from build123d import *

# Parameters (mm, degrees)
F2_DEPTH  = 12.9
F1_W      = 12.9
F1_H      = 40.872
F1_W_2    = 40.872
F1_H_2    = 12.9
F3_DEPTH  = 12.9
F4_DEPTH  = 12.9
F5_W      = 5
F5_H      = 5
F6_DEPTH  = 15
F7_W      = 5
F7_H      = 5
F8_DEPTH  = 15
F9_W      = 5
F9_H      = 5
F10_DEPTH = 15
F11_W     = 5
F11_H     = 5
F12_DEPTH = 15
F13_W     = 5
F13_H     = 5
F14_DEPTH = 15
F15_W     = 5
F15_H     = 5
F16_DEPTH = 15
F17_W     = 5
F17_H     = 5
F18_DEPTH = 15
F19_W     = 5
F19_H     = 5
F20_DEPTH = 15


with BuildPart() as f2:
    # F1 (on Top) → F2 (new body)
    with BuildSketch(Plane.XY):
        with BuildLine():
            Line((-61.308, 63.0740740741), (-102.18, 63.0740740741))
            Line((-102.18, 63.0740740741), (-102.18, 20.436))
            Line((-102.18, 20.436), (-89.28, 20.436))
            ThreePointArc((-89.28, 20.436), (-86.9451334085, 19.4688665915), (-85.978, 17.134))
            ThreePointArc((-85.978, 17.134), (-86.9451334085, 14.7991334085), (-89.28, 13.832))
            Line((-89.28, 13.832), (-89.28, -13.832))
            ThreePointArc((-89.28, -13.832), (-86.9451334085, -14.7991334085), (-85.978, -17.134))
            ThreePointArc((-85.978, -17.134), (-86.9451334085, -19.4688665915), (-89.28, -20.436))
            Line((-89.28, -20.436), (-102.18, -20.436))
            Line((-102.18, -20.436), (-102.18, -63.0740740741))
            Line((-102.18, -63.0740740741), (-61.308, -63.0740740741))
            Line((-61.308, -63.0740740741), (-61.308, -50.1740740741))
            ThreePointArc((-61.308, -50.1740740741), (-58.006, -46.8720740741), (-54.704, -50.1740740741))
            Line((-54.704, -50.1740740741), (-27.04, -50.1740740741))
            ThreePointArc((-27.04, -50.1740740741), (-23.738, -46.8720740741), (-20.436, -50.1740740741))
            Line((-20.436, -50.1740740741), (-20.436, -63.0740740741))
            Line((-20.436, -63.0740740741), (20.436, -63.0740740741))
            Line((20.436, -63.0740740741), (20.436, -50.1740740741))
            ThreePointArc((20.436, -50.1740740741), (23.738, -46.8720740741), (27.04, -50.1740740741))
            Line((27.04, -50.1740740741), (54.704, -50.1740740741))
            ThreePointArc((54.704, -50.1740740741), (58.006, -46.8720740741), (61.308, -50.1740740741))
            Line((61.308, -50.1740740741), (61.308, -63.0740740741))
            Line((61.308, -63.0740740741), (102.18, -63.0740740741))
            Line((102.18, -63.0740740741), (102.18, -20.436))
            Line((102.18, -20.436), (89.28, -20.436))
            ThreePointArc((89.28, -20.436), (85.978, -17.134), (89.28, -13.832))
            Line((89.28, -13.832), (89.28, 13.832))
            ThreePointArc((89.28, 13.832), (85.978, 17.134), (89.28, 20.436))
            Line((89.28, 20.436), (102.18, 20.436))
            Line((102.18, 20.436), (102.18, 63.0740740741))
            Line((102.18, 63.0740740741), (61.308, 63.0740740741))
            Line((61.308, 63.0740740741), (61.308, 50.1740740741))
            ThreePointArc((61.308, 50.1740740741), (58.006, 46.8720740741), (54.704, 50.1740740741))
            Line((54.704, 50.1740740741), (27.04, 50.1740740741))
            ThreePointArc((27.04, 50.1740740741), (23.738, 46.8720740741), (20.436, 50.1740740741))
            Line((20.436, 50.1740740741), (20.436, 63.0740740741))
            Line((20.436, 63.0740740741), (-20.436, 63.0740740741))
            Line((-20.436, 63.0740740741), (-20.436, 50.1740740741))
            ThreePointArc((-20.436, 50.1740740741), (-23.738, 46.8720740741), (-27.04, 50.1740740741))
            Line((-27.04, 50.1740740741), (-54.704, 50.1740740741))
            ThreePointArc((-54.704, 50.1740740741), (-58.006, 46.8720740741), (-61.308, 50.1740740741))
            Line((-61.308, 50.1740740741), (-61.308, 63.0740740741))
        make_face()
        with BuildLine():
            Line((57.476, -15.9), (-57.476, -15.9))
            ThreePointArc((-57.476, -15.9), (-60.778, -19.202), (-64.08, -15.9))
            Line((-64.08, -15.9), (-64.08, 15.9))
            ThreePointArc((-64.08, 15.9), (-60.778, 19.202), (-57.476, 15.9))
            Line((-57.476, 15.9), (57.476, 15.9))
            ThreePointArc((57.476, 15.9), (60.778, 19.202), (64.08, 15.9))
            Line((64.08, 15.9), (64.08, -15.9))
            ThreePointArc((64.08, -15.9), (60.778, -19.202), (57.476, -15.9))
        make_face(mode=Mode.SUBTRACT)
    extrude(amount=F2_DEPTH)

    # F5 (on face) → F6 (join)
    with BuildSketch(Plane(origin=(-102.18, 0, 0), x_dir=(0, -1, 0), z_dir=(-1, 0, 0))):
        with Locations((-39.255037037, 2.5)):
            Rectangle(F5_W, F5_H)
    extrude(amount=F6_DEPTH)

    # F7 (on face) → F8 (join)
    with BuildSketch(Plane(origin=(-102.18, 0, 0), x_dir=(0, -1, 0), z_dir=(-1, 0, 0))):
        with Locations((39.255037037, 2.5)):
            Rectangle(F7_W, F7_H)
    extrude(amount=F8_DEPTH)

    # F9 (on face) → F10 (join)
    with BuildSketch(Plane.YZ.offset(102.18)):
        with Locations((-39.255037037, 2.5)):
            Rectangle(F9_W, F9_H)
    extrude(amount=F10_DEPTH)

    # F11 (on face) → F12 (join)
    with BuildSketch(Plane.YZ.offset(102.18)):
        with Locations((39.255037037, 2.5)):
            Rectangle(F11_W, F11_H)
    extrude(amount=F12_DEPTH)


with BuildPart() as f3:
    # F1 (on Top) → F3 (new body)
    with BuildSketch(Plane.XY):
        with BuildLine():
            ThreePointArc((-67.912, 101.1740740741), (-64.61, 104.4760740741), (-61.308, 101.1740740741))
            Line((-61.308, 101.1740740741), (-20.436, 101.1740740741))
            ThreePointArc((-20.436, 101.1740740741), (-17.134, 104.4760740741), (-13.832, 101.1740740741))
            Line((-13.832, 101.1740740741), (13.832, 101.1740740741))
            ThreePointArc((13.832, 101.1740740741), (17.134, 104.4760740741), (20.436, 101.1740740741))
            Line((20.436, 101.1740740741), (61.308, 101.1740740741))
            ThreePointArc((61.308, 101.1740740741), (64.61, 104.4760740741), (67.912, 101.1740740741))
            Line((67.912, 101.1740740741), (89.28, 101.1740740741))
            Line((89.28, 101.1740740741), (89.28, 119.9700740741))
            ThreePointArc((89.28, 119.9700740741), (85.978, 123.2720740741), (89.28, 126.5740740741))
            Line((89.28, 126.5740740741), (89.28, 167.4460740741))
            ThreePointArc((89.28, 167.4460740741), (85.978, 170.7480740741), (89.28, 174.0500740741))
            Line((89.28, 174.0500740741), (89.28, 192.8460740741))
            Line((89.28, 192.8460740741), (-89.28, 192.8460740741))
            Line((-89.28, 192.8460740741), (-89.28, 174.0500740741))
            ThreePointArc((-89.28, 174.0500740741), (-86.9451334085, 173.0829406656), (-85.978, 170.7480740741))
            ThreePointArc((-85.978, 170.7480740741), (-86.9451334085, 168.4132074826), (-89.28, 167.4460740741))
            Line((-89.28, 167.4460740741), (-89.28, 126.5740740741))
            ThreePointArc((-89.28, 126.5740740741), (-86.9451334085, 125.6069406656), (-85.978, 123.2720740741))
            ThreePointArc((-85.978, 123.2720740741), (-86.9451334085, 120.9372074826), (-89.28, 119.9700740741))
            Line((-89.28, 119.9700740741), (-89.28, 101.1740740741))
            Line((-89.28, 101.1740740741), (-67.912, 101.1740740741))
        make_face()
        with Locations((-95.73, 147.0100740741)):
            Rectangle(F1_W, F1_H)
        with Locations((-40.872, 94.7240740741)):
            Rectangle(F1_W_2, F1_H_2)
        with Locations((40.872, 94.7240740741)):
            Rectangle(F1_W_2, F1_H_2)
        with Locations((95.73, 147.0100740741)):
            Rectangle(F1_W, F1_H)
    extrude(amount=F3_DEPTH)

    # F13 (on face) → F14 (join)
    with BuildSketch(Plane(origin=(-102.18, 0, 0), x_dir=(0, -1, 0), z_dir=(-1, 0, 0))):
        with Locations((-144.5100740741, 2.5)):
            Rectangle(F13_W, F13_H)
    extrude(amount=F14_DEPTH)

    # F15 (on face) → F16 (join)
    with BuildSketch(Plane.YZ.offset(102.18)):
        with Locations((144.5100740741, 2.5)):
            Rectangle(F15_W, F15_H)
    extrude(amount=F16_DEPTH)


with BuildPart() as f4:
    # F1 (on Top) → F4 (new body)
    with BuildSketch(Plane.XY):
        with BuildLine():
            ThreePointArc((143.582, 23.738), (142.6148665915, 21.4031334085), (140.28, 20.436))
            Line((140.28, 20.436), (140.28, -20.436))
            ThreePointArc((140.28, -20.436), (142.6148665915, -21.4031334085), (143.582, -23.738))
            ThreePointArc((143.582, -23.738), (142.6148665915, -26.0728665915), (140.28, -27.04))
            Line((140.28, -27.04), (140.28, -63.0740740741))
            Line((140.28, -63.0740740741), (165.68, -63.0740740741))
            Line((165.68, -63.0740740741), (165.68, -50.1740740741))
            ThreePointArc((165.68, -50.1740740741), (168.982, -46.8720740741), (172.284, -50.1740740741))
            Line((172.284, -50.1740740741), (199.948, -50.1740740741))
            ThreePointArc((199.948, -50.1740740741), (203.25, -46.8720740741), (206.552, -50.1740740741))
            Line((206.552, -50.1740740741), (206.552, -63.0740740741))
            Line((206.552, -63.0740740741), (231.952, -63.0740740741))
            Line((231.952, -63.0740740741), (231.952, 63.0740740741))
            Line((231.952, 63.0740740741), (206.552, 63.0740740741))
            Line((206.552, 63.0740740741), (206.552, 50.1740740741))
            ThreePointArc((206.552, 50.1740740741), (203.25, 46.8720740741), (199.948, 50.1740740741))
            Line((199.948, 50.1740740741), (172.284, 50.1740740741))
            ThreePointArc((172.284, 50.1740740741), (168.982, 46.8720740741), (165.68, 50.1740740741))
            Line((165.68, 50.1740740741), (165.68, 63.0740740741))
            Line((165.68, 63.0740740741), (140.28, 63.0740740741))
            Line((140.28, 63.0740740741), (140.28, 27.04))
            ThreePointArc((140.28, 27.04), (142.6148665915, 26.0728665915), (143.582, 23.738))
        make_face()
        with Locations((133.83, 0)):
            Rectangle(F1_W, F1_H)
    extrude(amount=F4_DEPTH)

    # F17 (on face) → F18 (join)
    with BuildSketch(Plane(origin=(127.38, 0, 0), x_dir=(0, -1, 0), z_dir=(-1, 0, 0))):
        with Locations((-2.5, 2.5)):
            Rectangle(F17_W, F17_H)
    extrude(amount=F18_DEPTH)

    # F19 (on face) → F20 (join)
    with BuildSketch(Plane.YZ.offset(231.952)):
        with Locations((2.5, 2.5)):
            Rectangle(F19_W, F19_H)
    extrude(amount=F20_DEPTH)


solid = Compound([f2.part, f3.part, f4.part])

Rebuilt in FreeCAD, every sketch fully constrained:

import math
import FreeCAD as App
import Part
import Sketcher
from FreeCAD import Vector
Q = App.Units.Quantity


def add_polygon(sketch, points):
    """Adds a closed chain of lines whose ends are joined by coincident constraints."""
    first, n = sketch.GeometryCount, len(points)
    for a, b in zip(points, points[1:] + points[:1]):
        sketch.addGeometry(Part.LineSegment(App.Vector(*a, 0), App.Vector(*b, 0)), False)
    for i in range(n):
        sketch.addConstraint(Sketcher.Constraint("Coincident", first + i, 2, first + (i + 1) % n, 1))

doc = App.newDocument("Part")
body = doc.addObject("PartDesign::Body", "Body")

sketch1 = doc.addObject("Sketcher::SketchObject", "Sketch")
body.addObject(sketch1)
sketch1.AttachmentSupport = (doc.XY_Plane, [""])
sketch1.MapMode = "FlatFace"
sketch1.addGeometry(Part.LineSegment(Vector(-61.3, 63.1, 0), Vector(-102.2, 63.1, 0)), False)
sketch1.addGeometry(Part.LineSegment(Vector(-102.2, 63.1, 0), Vector(-102.2, 20.4, 0)), False)
sketch1.addGeometry(Part.LineSegment(Vector(-102.2, 20.4, 0), Vector(-89.3, 20.4, 0)), False)
sketch1.addGeometry(Part.ArcOfCircle(Part.Circle(Vector(-89.3, 17.1, 0), Vector(0, 0, 1), 3.3), math.radians(0), math.radians(90)), False)
sketch1.addGeometry(Part.ArcOfCircle(Part.Circle(Vector(-89.3, 17.1, 0), Vector(0, 0, 1), 3.3), math.radians(-90), math.radians(0)), False)
sketch1.addGeometry(Part.LineSegment(Vector(-89.3, 13.8, 0), Vector(-89.3, -13.8, 0)), False)
sketch1.addGeometry(Part.ArcOfCircle(Part.Circle(Vector(-89.3, -17.1, 0), Vector(0, 0, 1), 3.3), math.radians(0), math.radians(90)), False)
sketch1.addGeometry(Part.ArcOfCircle(Part.Circle(Vector(-89.3, -17.1, 0), Vector(0, 0, 1), 3.3), math.radians(-90), math.radians(0)), False)
sketch1.addGeometry(Part.LineSegment(Vector(-89.3, -20.4, 0), Vector(-102.2, -20.4, 0)), False)
sketch1.addGeometry(Part.LineSegment(Vector(-102.2, -20.4, 0), Vector(-102.2, -63.1, 0)), False)
sketch1.addGeometry(Part.LineSegment(Vector(-102.2, -63.1, 0), Vector(-61.3, -63.1, 0)), False)
sketch1.addGeometry(Part.LineSegment(Vector(-61.3, -63.1, 0), Vector(-61.3, -50.2, 0)), False)
sketch1.addGeometry(Part.ArcOfCircle(Part.Circle(Vector(-58, -50.2, 0), Vector(0, 0, 1), 3.3), math.radians(0), math.radians(180)), False)
sketch1.addGeometry(Part.LineSegment(Vector(-54.7, -50.2, 0), Vector(-27, -50.2, 0)), False)
sketch1.addGeometry(Part.ArcOfCircle(Part.Circle(Vector(-23.7, -50.2, 0), Vector(0, 0, 1), 3.3), math.radians(0), math.radians(180)), False)
sketch1.addGeometry(Part.LineSegment(Vector(-20.4, -50.2, 0), Vector(-20.4, -63.1, 0)), False)
sketch1.addGeometry(Part.LineSegment(Vector(-20.4, -63.1, 0), Vector(20.4, -63.1, 0)), False)
sketch1.addGeometry(Part.LineSegment(Vector(20.4, -63.1, 0), Vector(20.4, -50.2, 0)), False)
sketch1.addGeometry(Part.ArcOfCircle(Part.Circle(Vector(23.7, -50.2, 0), Vector(0, 0, 1), 3.3), math.radians(0), math.radians(180)), False)
sketch1.addGeometry(Part.LineSegment(Vector(27, -50.2, 0), Vector(54.7, -50.2, 0)), False)
sketch1.addGeometry(Part.ArcOfCircle(Part.Circle(Vector(58, -50.2, 0), Vector(0, 0, 1), 3.3), math.radians(0), math.radians(180)), False)
sketch1.addGeometry(Part.LineSegment(Vector(61.3, -50.2, 0), Vector(61.3, -63.1, 0)), False)
sketch1.addGeometry(Part.LineSegment(Vector(61.3, -63.1, 0), Vector(102.2, -63.1, 0)), False)
sketch1.addGeometry(Part.LineSegment(Vector(102.2, -63.1, 0), Vector(102.2, -20.4, 0)), False)
sketch1.addGeometry(Part.LineSegment(Vector(102.2, -20.4, 0), Vector(89.3, -20.4, 0)), False)
sketch1.addGeometry(Part.ArcOfCircle(Part.Circle(Vector(89.3, -17.1, 0), Vector(0, 0, 1), 3.3), math.radians(90), math.radians(270)), False)
sketch1.addGeometry(Part.LineSegment(Vector(89.3, -13.8, 0), Vector(89.3, 13.8, 0)), False)
sketch1.addGeometry(Part.ArcOfCircle(Part.Circle(Vector(89.3, 17.1, 0), Vector(0, 0, 1), 3.3), math.radians(90), math.radians(270)), False)
sketch1.addGeometry(Part.LineSegment(Vector(89.3, 20.4, 0), Vector(102.2, 20.4, 0)), False)
sketch1.addGeometry(Part.LineSegment(Vector(102.2, 20.4, 0), Vector(102.2, 63.1, 0)), False)
sketch1.addGeometry(Part.LineSegment(Vector(102.2, 63.1, 0), Vector(61.3, 63.1, 0)), False)
sketch1.addGeometry(Part.LineSegment(Vector(61.3, 63.1, 0), Vector(61.3, 50.2, 0)), False)
sketch1.addGeometry(Part.ArcOfCircle(Part.Circle(Vector(58, 50.2, 0), Vector(0, 0, 1), 3.3), math.radians(180), math.radians(360)), False)
sketch1.addGeometry(Part.LineSegment(Vector(54.7, 50.2, 0), Vector(27, 50.2, 0)), False)
sketch1.addGeometry(Part.ArcOfCircle(Part.Circle(Vector(23.7, 50.2, 0), Vector(0, 0, 1), 3.3), math.radians(180), math.radians(360)), False)
sketch1.addGeometry(Part.LineSegment(Vector(20.4, 50.2, 0), Vector(20.4, 63.1, 0)), False)
sketch1.addGeometry(Part.LineSegment(Vector(20.4, 63.1, 0), Vector(-20.4, 63.1, 0)), False)
sketch1.addGeometry(Part.LineSegment(Vector(-20.4, 63.1, 0), Vector(-20.4, 50.2, 0)), False)
sketch1.addGeometry(Part.ArcOfCircle(Part.Circle(Vector(-23.7, 50.2, 0), Vector(0, 0, 1), 3.3), math.radians(180), math.radians(360)), False)
sketch1.addGeometry(Part.LineSegment(Vector(-27, 50.2, 0), Vector(-54.7, 50.2, 0)), False)
sketch1.addGeometry(Part.ArcOfCircle(Part.Circle(Vector(-58, 50.2, 0), Vector(0, 0, 1), 3.3), math.radians(180), math.radians(360)), False)
sketch1.addGeometry(Part.LineSegment(Vector(-61.3, 50.2, 0), Vector(-61.3, 63.1, 0)), False)
sketch1.addGeometry(Part.ArcOfCircle(Part.Circle(Vector(60.8, -15.9, 0), Vector(0, 0, 1), 3.3), math.radians(180), math.radians(360)), False)
sketch1.addGeometry(Part.LineSegment(Vector(57.5, -15.9, 0), Vector(-57.5, -15.9, 0)), False)
sketch1.addGeometry(Part.ArcOfCircle(Part.Circle(Vector(-60.8, -15.9, 0), Vector(0, 0, 1), 3.3), math.radians(180), math.radians(360)), False)
sketch1.addGeometry(Part.LineSegment(Vector(-64.1, -15.9, 0), Vector(-64.1, 15.9, 0)), False)
sketch1.addGeometry(Part.ArcOfCircle(Part.Circle(Vector(-60.8, 15.9, 0), Vector(0, 0, 1), 3.3), math.radians(0), math.radians(180)), False)
sketch1.addGeometry(Part.LineSegment(Vector(-57.5, 15.9, 0), Vector(57.5, 15.9, 0)), False)
sketch1.addGeometry(Part.ArcOfCircle(Part.Circle(Vector(60.8, 15.9, 0), Vector(0, 0, 1), 3.3), math.radians(0), math.radians(180)), False)
sketch1.addGeometry(Part.LineSegment(Vector(64.1, 15.9, 0), Vector(64.1, -15.9, 0)), False)
sketch1.addConstraint(Sketcher.Constraint("Coincident", 0, 2, 1, 1))
sketch1.addConstraint(Sketcher.Constraint("Coincident", 1, 2, 2, 1))
sketch1.addConstraint(Sketcher.Constraint("Tangent", 2, 2, 3, 2))
sketch1.addConstraint(Sketcher.Constraint("Tangent", 3, 1, 4, 2))
sketch1.addConstraint(Sketcher.Constraint("Coincident", 4, 1, 5, 1))
sketch1.addConstraint(Sketcher.Constraint("Coincident", 5, 2, 6, 2))
sketch1.addConstraint(Sketcher.Constraint("Tangent", 6, 1, 7, 2))
sketch1.addConstraint(Sketcher.Constraint("Tangent", 7, 1, 8, 1))
sketch1.addConstraint(Sketcher.Constraint("Coincident", 8, 2, 9, 1))
sketch1.addConstraint(Sketcher.Constraint("Coincident", 9, 2, 10, 1))
sketch1.addConstraint(Sketcher.Constraint("Coincident", 10, 2, 11, 1))
sketch1.addConstraint(Sketcher.Constraint("Tangent", 11, 2, 12, 2))
sketch1.addConstraint(Sketcher.Constraint("Coincident", 12, 1, 13, 1))
sketch1.addConstraint(Sketcher.Constraint("Coincident", 13, 2, 14, 2))
sketch1.addConstraint(Sketcher.Constraint("Tangent", 14, 1, 15, 1))
sketch1.addConstraint(Sketcher.Constraint("Coincident", 15, 2, 16, 1))
sketch1.addConstraint(Sketcher.Constraint("Coincident", 16, 2, 17, 1))
sketch1.addConstraint(Sketcher.Constraint("Tangent", 17, 2, 18, 2))
sketch1.addConstraint(Sketcher.Constraint("Coincident", 18, 1, 19, 1))
sketch1.addConstraint(Sketcher.Constraint("Coincident", 19, 2, 20, 2))
sketch1.addConstraint(Sketcher.Constraint("Tangent", 20, 1, 21, 1))
sketch1.addConstraint(Sketcher.Constraint("Coincident", 21, 2, 22, 1))
sketch1.addConstraint(Sketcher.Constraint("Coincident", 22, 2, 23, 1))
sketch1.addConstraint(Sketcher.Constraint("Coincident", 23, 2, 24, 1))
sketch1.addConstraint(Sketcher.Constraint("Tangent", 24, 2, 25, 2))
sketch1.addConstraint(Sketcher.Constraint("Coincident", 25, 1, 26, 1))
sketch1.addConstraint(Sketcher.Constraint("Coincident", 26, 2, 27, 2))
sketch1.addConstraint(Sketcher.Constraint("Tangent", 27, 1, 28, 1))
sketch1.addConstraint(Sketcher.Constraint("Coincident", 28, 2, 29, 1))
sketch1.addConstraint(Sketcher.Constraint("Coincident", 29, 2, 30, 1))
sketch1.addConstraint(Sketcher.Constraint("Coincident", 30, 2, 31, 1))
sketch1.addConstraint(Sketcher.Constraint("Tangent", 31, 2, 32, 2))
sketch1.addConstraint(Sketcher.Constraint("Coincident", 32, 1, 33, 1))
sketch1.addConstraint(Sketcher.Constraint("Coincident", 33, 2, 34, 2))
sketch1.addConstraint(Sketcher.Constraint("Tangent", 34, 1, 35, 1))
sketch1.addConstraint(Sketcher.Constraint("Coincident", 35, 2, 36, 1))
sketch1.addConstraint(Sketcher.Constraint("Coincident", 36, 2, 37, 1))
sketch1.addConstraint(Sketcher.Constraint("Tangent", 37, 2, 38, 2))
sketch1.addConstraint(Sketcher.Constraint("Coincident", 38, 1, 39, 1))
sketch1.addConstraint(Sketcher.Constraint("Coincident", 39, 2, 40, 2))
sketch1.addConstraint(Sketcher.Constraint("Tangent", 40, 1, 41, 1))
sketch1.addConstraint(Sketcher.Constraint("Coincident", 41, 2, 0, 1))
sketch1.addConstraint(Sketcher.Constraint("Coincident", 42, 1, 43, 1))
sketch1.addConstraint(Sketcher.Constraint("Coincident", 43, 2, 44, 2))
sketch1.addConstraint(Sketcher.Constraint("Tangent", 44, 1, 45, 1))
sketch1.addConstraint(Sketcher.Constraint("Tangent", 45, 2, 46, 2))
sketch1.addConstraint(Sketcher.Constraint("Coincident", 46, 1, 47, 1))
sketch1.addConstraint(Sketcher.Constraint("Coincident", 47, 2, 48, 2))
sketch1.addConstraint(Sketcher.Constraint("Tangent", 48, 1, 49, 1))
sketch1.addConstraint(Sketcher.Constraint("Tangent", 49, 2, 42, 2))
sketch1.addConstraint(Sketcher.Constraint("Horizontal", 0))
sketch1.addConstraint(Sketcher.Constraint("Vertical", 1))
sketch1.addConstraint(Sketcher.Constraint("Horizontal", 2))
sketch1.addConstraint(Sketcher.Constraint("Vertical", 5))
sketch1.addConstraint(Sketcher.Constraint("Horizontal", 8))
sketch1.addConstraint(Sketcher.Constraint("Vertical", 9))
sketch1.addConstraint(Sketcher.Constraint("Horizontal", 10))
sketch1.addConstraint(Sketcher.Constraint("Vertical", 11))
sketch1.addConstraint(Sketcher.Constraint("Horizontal", 13))
sketch1.addConstraint(Sketcher.Constraint("Vertical", 15))
sketch1.addConstraint(Sketcher.Constraint("Horizontal", 16))
sketch1.addConstraint(Sketcher.Constraint("Vertical", 17))
sketch1.addConstraint(Sketcher.Constraint("Horizontal", 19))
sketch1.addConstraint(Sketcher.Constraint("Vertical", 21))
sketch1.addConstraint(Sketcher.Constraint("Horizontal", 22))
sketch1.addConstraint(Sketcher.Constraint("Vertical", 23))
sketch1.addConstraint(Sketcher.Constraint("Horizontal", 24))
sketch1.addConstraint(Sketcher.Constraint("Vertical", 26))
sketch1.addConstraint(Sketcher.Constraint("Horizontal", 28))
sketch1.addConstraint(Sketcher.Constraint("Vertical", 29))
sketch1.addConstraint(Sketcher.Constraint("Horizontal", 30))
sketch1.addConstraint(Sketcher.Constraint("Vertical", 31))
sketch1.addConstraint(Sketcher.Constraint("Horizontal", 33))
sketch1.addConstraint(Sketcher.Constraint("Vertical", 35))
sketch1.addConstraint(Sketcher.Constraint("Horizontal", 36))
sketch1.addConstraint(Sketcher.Constraint("Vertical", 37))
sketch1.addConstraint(Sketcher.Constraint("Horizontal", 39))
sketch1.addConstraint(Sketcher.Constraint("Vertical", 41))
sketch1.addConstraint(Sketcher.Constraint("Horizontal", 43))
sketch1.addConstraint(Sketcher.Constraint("Vertical", 45))
sketch1.addConstraint(Sketcher.Constraint("Horizontal", 47))
sketch1.addConstraint(Sketcher.Constraint("Vertical", 49))
sketch1.addConstraint(Sketcher.Constraint("Equal", 3, 4))
sketch1.addConstraint(Sketcher.Constraint("Equal", 4, 6))
sketch1.addConstraint(Sketcher.Constraint("Equal", 6, 7))
sketch1.addConstraint(Sketcher.Constraint("Equal", 7, 12))
sketch1.addConstraint(Sketcher.Constraint("Equal", 12, 14))
sketch1.addConstraint(Sketcher.Constraint("Equal", 14, 18))
sketch1.addConstraint(Sketcher.Constraint("Equal", 18, 20))
sketch1.addConstraint(Sketcher.Constraint("Equal", 20, 25))
sketch1.addConstraint(Sketcher.Constraint("Equal", 25, 27))
sketch1.addConstraint(Sketcher.Constraint("Equal", 27, 32))
sketch1.addConstraint(Sketcher.Constraint("Equal", 32, 34))
sketch1.addConstraint(Sketcher.Constraint("Equal", 34, 38))
sketch1.addConstraint(Sketcher.Constraint("Equal", 38, 40))
sketch1.addConstraint(Sketcher.Constraint("Equal", 40, 42))
sketch1.addConstraint(Sketcher.Constraint("Equal", 42, 44))
sketch1.addConstraint(Sketcher.Constraint("Equal", 44, 46))
sketch1.addConstraint(Sketcher.Constraint("Equal", 46, 48))
sketch1.addConstraint(Sketcher.Constraint("Symmetric", 3, 3, 25, 3, -1, 1))
sketch1.addConstraint(Sketcher.Constraint("Symmetric", 6, 3, 27, 3, -1, 1))
sketch1.addConstraint(Sketcher.Constraint("Symmetric", 12, 3, 32, 3, -1, 1))
sketch1.addConstraint(Sketcher.Constraint("Symmetric", 14, 3, 34, 3, -1, 1))
sketch1.addConstraint(Sketcher.Constraint("Symmetric", 18, 3, 38, 3, -1, 1))
sketch1.addConstraint(Sketcher.Constraint("Symmetric", 20, 3, 40, 3, -1, 1))
sketch1.addConstraint(Sketcher.Constraint("Symmetric", 42, 3, 46, 3, -1, 1))
sketch1.addConstraint(Sketcher.Constraint("Symmetric", 0, 2, 22, 2, -1, 1))
sketch1.addConstraint(Sketcher.Constraint("Symmetric", 9, 2, 29, 2, -1, 1))
sketch1.addConstraint(Sketcher.Constraint("Symmetric", 14, 3, 18, 3, -2))
sketch1.addConstraint(Sketcher.Constraint("Symmetric", 12, 3, 20, 3, -2))
sketch1.addConstraint(Sketcher.Constraint("Symmetric", 6, 3, 25, 3, -2))
sketch1.addConstraint(Sketcher.Constraint("Symmetric", 9, 2, 22, 2, -2))
sketch1.addConstraint(Sketcher.Constraint("Horizontal", 12, 3, 14, 3))
sketch1.addConstraint(Sketcher.Constraint("Horizontal", 42, 3, 44, 3))
sketch1.addConstraint(Sketcher.Constraint("Horizontal", 46, 3, 48, 3))
sketch1.addConstraint(Sketcher.Constraint("Horizontal", 27, 3, 3, 1))
sketch1.addConstraint(Sketcher.Constraint("Horizontal", 25, 3, 6, 1))
sketch1.addConstraint(Sketcher.Constraint("Horizontal", 11, 2, 12, 1))
sketch1.addConstraint(Sketcher.Constraint("Horizontal", 10, 2, 15, 2))
sketch1.addConstraint(Sketcher.Constraint("Horizontal", 17, 2, 18, 1))
sketch1.addConstraint(Sketcher.Constraint("Horizontal", 31, 2, 32, 1))
sketch1.addConstraint(Sketcher.Constraint("Horizontal", 30, 2, 35, 2))
sketch1.addConstraint(Sketcher.Constraint("Horizontal", 37, 2, 38, 1))
sketch1.addConstraint(Sketcher.Constraint("Horizontal", 44, 3, 42, 1))
sketch1.addConstraint(Sketcher.Constraint("Horizontal", 45, 2, 46, 1))
sketch1.addConstraint(Sketcher.Constraint("Vertical", 2, 2, 4, 1))
sketch1.addConstraint(Sketcher.Constraint("Vertical", 24, 2, 25, 1))
sketch1.addConstraint(Sketcher.Constraint("Equal", 10, 16))
sketch1.addConstraint(Sketcher.Constraint("Equal", 39, 5))
sketch1.addConstraint(Sketcher.Constraint("Equal", 28, 11))
sketch1.addConstraint(Sketcher.Constraint("DistanceX", 2, 1, 2, 2, Q("12.9 mm")))
sketch1.addConstraint(Sketcher.Constraint("DistanceY", 45, 1, 45, 2, Q("31.8 mm")))
sketch1.addConstraint(Sketcher.Constraint("Radius", 3, Q("3.302 mm")))
sketch1.addConstraint(Sketcher.Constraint("DistanceX", 0, 2, 0, 1, Q("40.872 mm")))
sketch1.addConstraint(Sketcher.Constraint("DistanceX", 13, 1, 13, 2, Q("27.664 mm")))
sketch1.addConstraint(Sketcher.Constraint("DistanceX", 43, 2, 43, 1, Q("114.952 mm")))
sketch1.addConstraint(Sketcher.Constraint("DistanceY", 1, 2, 1, 1, Q("42.638074 mm")))
pad1 = doc.addObject("PartDesign::Pad", "Pad")
body.addObject(pad1)
pad1.Profile = sketch1
pad1.Length = 12.9

sketch2 = doc.addObject("Sketcher::SketchObject", "Sketch001")
body.addObject(sketch2)
sketch2.AttachmentSupport = (doc.YZ_Plane, [""])
sketch2.MapMode = "FlatFace"
sketch2.AttachmentOffset = App.Placement(Vector(0, 0, -102.18), App.Rotation())
add_polygon(sketch2, [(42, 5), (42, 0), (37, 0), (37, 5)])
sketch2.addConstraint(Sketcher.Constraint("Vertical", 0))
sketch2.addConstraint(Sketcher.Constraint("Horizontal", 1))
sketch2.addConstraint(Sketcher.Constraint("Vertical", 2))
sketch2.addConstraint(Sketcher.Constraint("Horizontal", 3))
sketch2.addConstraint(Sketcher.Constraint("PointOnObject", 0, 2, -1))
sketch2.addConstraint(Sketcher.Constraint("Equal", 3, 0))
sketch2.addConstraint(Sketcher.Constraint("DistanceX", 1, 2, 1, 1, Q("5 mm")))
sketch2.addConstraint(Sketcher.Constraint("DistanceX", -1, 1, 0, 2, Q("41.755037 mm")))
pad2 = doc.addObject("PartDesign::Pad", "Pad001")
body.addObject(pad2)
pad2.Profile = sketch2
pad2.Length = 15
pad2.Reversed = True

sketch3 = doc.addObject("Sketcher::SketchObject", "Sketch002")
body.addObject(sketch3)
sketch3.AttachmentSupport = (doc.YZ_Plane, [""])
sketch3.MapMode = "FlatFace"
sketch3.AttachmentOffset = App.Placement(Vector(0, 0, -102.18), App.Rotation())
add_polygon(sketch3, [(-37, 5), (-37, 0), (-42, 0), (-42, 5)])
sketch3.addConstraint(Sketcher.Constraint("Vertical", 0))
sketch3.addConstraint(Sketcher.Constraint("Horizontal", 1))
sketch3.addConstraint(Sketcher.Constraint("Vertical", 2))
sketch3.addConstraint(Sketcher.Constraint("Horizontal", 3))
sketch3.addConstraint(Sketcher.Constraint("PointOnObject", 0, 2, -1))
sketch3.addConstraint(Sketcher.Constraint("Equal", 3, 0))
sketch3.addConstraint(Sketcher.Constraint("DistanceX", 1, 2, 1, 1, Q("5 mm")))
sketch3.addConstraint(Sketcher.Constraint("DistanceX", 0, 2, -1, 1, Q("36.755037 mm")))
pad3 = doc.addObject("PartDesign::Pad", "Pad002")
body.addObject(pad3)
pad3.Profile = sketch3
pad3.Length = 15
pad3.Reversed = True

sketch4 = doc.addObject("Sketcher::SketchObject", "Sketch003")
body.addObject(sketch4)
sketch4.AttachmentSupport = (doc.YZ_Plane, [""])
sketch4.MapMode = "FlatFace"
sketch4.AttachmentOffset = App.Placement(Vector(0, 0, 102.18), App.Rotation())
add_polygon(sketch4, [(-42, 5), (-42, 0), (-37, 0), (-37, 5)])
sketch4.addConstraint(Sketcher.Constraint("Vertical", 0))
sketch4.addConstraint(Sketcher.Constraint("Horizontal", 1))
sketch4.addConstraint(Sketcher.Constraint("Vertical", 2))
sketch4.addConstraint(Sketcher.Constraint("Horizontal", 3))
sketch4.addConstraint(Sketcher.Constraint("PointOnObject", 0, 2, -1))
sketch4.addConstraint(Sketcher.Constraint("Equal", 3, 0))
sketch4.addConstraint(Sketcher.Constraint("DistanceX", 1, 1, 1, 2, Q("5 mm")))
sketch4.addConstraint(Sketcher.Constraint("DistanceX", 0, 2, -1, 1, Q("41.755037 mm")))
pad4 = doc.addObject("PartDesign::Pad", "Pad003")
body.addObject(pad4)
pad4.Profile = sketch4
pad4.Length = 15

sketch5 = doc.addObject("Sketcher::SketchObject", "Sketch004")
body.addObject(sketch5)
sketch5.AttachmentSupport = (doc.YZ_Plane, [""])
sketch5.MapMode = "FlatFace"
sketch5.AttachmentOffset = App.Placement(Vector(0, 0, 102.18), App.Rotation())
add_polygon(sketch5, [(37, 5), (37, 0), (42, 0), (42, 5)])
sketch5.addConstraint(Sketcher.Constraint("Vertical", 0))
sketch5.addConstraint(Sketcher.Constraint("Horizontal", 1))
sketch5.addConstraint(Sketcher.Constraint("Vertical", 2))
sketch5.addConstraint(Sketcher.Constraint("Horizontal", 3))
sketch5.addConstraint(Sketcher.Constraint("PointOnObject", 0, 2, -1))
sketch5.addConstraint(Sketcher.Constraint("Equal", 3, 0))
sketch5.addConstraint(Sketcher.Constraint("DistanceX", 1, 1, 1, 2, Q("5 mm")))
sketch5.addConstraint(Sketcher.Constraint("DistanceX", -1, 1, 0, 2, Q("36.755037 mm")))
pad5 = doc.addObject("PartDesign::Pad", "Pad004")
body.addObject(pad5)
pad5.Profile = sketch5
pad5.Length = 15
body2 = doc.addObject("PartDesign::Body", "Body001")

sketch6 = doc.addObject("Sketcher::SketchObject", "Sketch005")
body2.addObject(sketch6)
sketch6.AttachmentSupport = (doc.getObject("XY_Plane001"), [""])
sketch6.MapMode = "FlatFace"
sketch6.addGeometry(Part.ArcOfCircle(Part.Circle(Vector(-64.6, 101.2, 0), Vector(0, 0, 1), 3.3), math.radians(0), math.radians(180)), False)
sketch6.addGeometry(Part.LineSegment(Vector(-61.3, 101.2, 0), Vector(-61.3, 88.3, 0)), False)
sketch6.addGeometry(Part.LineSegment(Vector(-61.3, 88.3, 0), Vector(-20.4, 88.3, 0)), False)
sketch6.addGeometry(Part.LineSegment(Vector(-20.4, 88.3, 0), Vector(-20.4, 101.2, 0)), False)
sketch6.addGeometry(Part.ArcOfCircle(Part.Circle(Vector(-17.1, 101.2, 0), Vector(0, 0, 1), 3.3), math.radians(0), math.radians(180)), False)
sketch6.addGeometry(Part.LineSegment(Vector(-13.8, 101.2, 0), Vector(13.8, 101.2, 0)), False)
sketch6.addGeometry(Part.ArcOfCircle(Part.Circle(Vector(17.1, 101.2, 0), Vector(0, 0, 1), 3.3), math.radians(0), math.radians(180)), False)
sketch6.addGeometry(Part.LineSegment(Vector(20.4, 101.2, 0), Vector(20.4, 88.3, 0)), False)
sketch6.addGeometry(Part.LineSegment(Vector(20.4, 88.3, 0), Vector(61.3, 88.3, 0)), False)
sketch6.addGeometry(Part.LineSegment(Vector(61.3, 88.3, 0), Vector(61.3, 101.2, 0)), False)
sketch6.addGeometry(Part.ArcOfCircle(Part.Circle(Vector(64.6, 101.2, 0), Vector(0, 0, 1), 3.3), math.radians(0), math.radians(180)), False)
sketch6.addGeometry(Part.LineSegment(Vector(67.9, 101.2, 0), Vector(89.3, 101.2, 0)), False)
sketch6.addGeometry(Part.LineSegment(Vector(89.3, 101.2, 0), Vector(89.3, 120, 0)), False)
sketch6.addGeometry(Part.ArcOfCircle(Part.Circle(Vector(89.3, 123.3, 0), Vector(0, 0, 1), 3.3), math.radians(90), math.radians(270)), False)
sketch6.addGeometry(Part.LineSegment(Vector(89.3, 126.6, 0), Vector(102.2, 126.6, 0)), False)
sketch6.addGeometry(Part.LineSegment(Vector(102.2, 126.6, 0), Vector(102.2, 167.4, 0)), False)
sketch6.addGeometry(Part.LineSegment(Vector(102.2, 167.4, 0), Vector(89.3, 167.4, 0)), False)
sketch6.addGeometry(Part.ArcOfCircle(Part.Circle(Vector(89.3, 170.7, 0), Vector(0, 0, 1), 3.3), math.radians(90), math.radians(270)), False)
sketch6.addGeometry(Part.LineSegment(Vector(89.3, 174.1, 0), Vector(89.3, 192.8, 0)), False)
sketch6.addGeometry(Part.LineSegment(Vector(89.3, 192.8, 0), Vector(-89.3, 192.8, 0)), False)
sketch6.addGeometry(Part.LineSegment(Vector(-89.3, 192.8, 0), Vector(-89.3, 174.1, 0)), False)
sketch6.addGeometry(Part.ArcOfCircle(Part.Circle(Vector(-89.3, 170.7, 0), Vector(0, 0, 1), 3.3), math.radians(0), math.radians(90)), False)
sketch6.addGeometry(Part.ArcOfCircle(Part.Circle(Vector(-89.3, 170.7, 0), Vector(0, 0, 1), 3.3), math.radians(-90), math.radians(0)), False)
sketch6.addGeometry(Part.LineSegment(Vector(-89.3, 167.4, 0), Vector(-102.2, 167.4, 0)), False)
sketch6.addGeometry(Part.LineSegment(Vector(-102.2, 167.4, 0), Vector(-102.2, 126.6, 0)), False)
sketch6.addGeometry(Part.LineSegment(Vector(-102.2, 126.6, 0), Vector(-89.3, 126.6, 0)), False)
sketch6.addGeometry(Part.ArcOfCircle(Part.Circle(Vector(-89.3, 123.3, 0), Vector(0, 0, 1), 3.3), math.radians(0), math.radians(90)), False)
sketch6.addGeometry(Part.ArcOfCircle(Part.Circle(Vector(-89.3, 123.3, 0), Vector(0, 0, 1), 3.3), math.radians(-90), math.radians(0)), False)
sketch6.addGeometry(Part.LineSegment(Vector(-89.3, 120, 0), Vector(-89.3, 101.2, 0)), False)
sketch6.addGeometry(Part.LineSegment(Vector(-89.3, 101.2, 0), Vector(-67.9, 101.2, 0)), False)
sketch6.addConstraint(Sketcher.Constraint("Tangent", 0, 1, 1, 1))
sketch6.addConstraint(Sketcher.Constraint("Coincident", 1, 2, 2, 1))
sketch6.addConstraint(Sketcher.Constraint("Coincident", 2, 2, 3, 1))
sketch6.addConstraint(Sketcher.Constraint("Tangent", 3, 2, 4, 2))
sketch6.addConstraint(Sketcher.Constraint("Coincident", 4, 1, 5, 1))
sketch6.addConstraint(Sketcher.Constraint("Coincident", 5, 2, 6, 2))
sketch6.addConstraint(Sketcher.Constraint("Tangent", 6, 1, 7, 1))
sketch6.addConstraint(Sketcher.Constraint("Coincident", 7, 2, 8, 1))
sketch6.addConstraint(Sketcher.Constraint("Coincident", 8, 2, 9, 1))
sketch6.addConstraint(Sketcher.Constraint("Tangent", 9, 2, 10, 2))
sketch6.addConstraint(Sketcher.Constraint("Coincident", 10, 1, 11, 1))
sketch6.addConstraint(Sketcher.Constraint("Coincident", 11, 2, 12, 1))
sketch6.addConstraint(Sketcher.Constraint("Coincident", 12, 2, 13, 2))
sketch6.addConstraint(Sketcher.Constraint("Tangent", 13, 1, 14, 1))
sketch6.addConstraint(Sketcher.Constraint("Coincident", 14, 2, 15, 1))
sketch6.addConstraint(Sketcher.Constraint("Coincident", 15, 2, 16, 1))
sketch6.addConstraint(Sketcher.Constraint("Tangent", 16, 2, 17, 2))
sketch6.addConstraint(Sketcher.Constraint("Coincident", 17, 1, 18, 1))
sketch6.addConstraint(Sketcher.Constraint("Coincident", 18, 2, 19, 1))
sketch6.addConstraint(Sketcher.Constraint("Coincident", 19, 2, 20, 1))
sketch6.addConstraint(Sketcher.Constraint("Coincident", 20, 2, 21, 2))
sketch6.addConstraint(Sketcher.Constraint("Tangent", 21, 1, 22, 2))
sketch6.addConstraint(Sketcher.Constraint("Tangent", 22, 1, 23, 1))
sketch6.addConstraint(Sketcher.Constraint("Coincident", 23, 2, 24, 1))
sketch6.addConstraint(Sketcher.Constraint("Coincident", 24, 2, 25, 1))
sketch6.addConstraint(Sketcher.Constraint("Tangent", 25, 2, 26, 2))
sketch6.addConstraint(Sketcher.Constraint("Tangent", 26, 1, 27, 2))
sketch6.addConstraint(Sketcher.Constraint("Coincident", 27, 1, 28, 1))
sketch6.addConstraint(Sketcher.Constraint("Coincident", 28, 2, 29, 1))
sketch6.addConstraint(Sketcher.Constraint("Coincident", 29, 2, 0, 2))
sketch6.addConstraint(Sketcher.Constraint("Vertical", 1))
sketch6.addConstraint(Sketcher.Constraint("Horizontal", 2))
sketch6.addConstraint(Sketcher.Constraint("Vertical", 3))
sketch6.addConstraint(Sketcher.Constraint("Horizontal", 5))
sketch6.addConstraint(Sketcher.Constraint("Vertical", 7))
sketch6.addConstraint(Sketcher.Constraint("Horizontal", 8))
sketch6.addConstraint(Sketcher.Constraint("Vertical", 9))
sketch6.addConstraint(Sketcher.Constraint("Horizontal", 11))
sketch6.addConstraint(Sketcher.Constraint("Vertical", 12))
sketch6.addConstraint(Sketcher.Constraint("Horizontal", 14))
sketch6.addConstraint(Sketcher.Constraint("Vertical", 15))
sketch6.addConstraint(Sketcher.Constraint("Horizontal", 16))
sketch6.addConstraint(Sketcher.Constraint("Vertical", 18))
sketch6.addConstraint(Sketcher.Constraint("Horizontal", 19))
sketch6.addConstraint(Sketcher.Constraint("Vertical", 20))
sketch6.addConstraint(Sketcher.Constraint("Horizontal", 23))
sketch6.addConstraint(Sketcher.Constraint("Vertical", 24))
sketch6.addConstraint(Sketcher.Constraint("Horizontal", 25))
sketch6.addConstraint(Sketcher.Constraint("Vertical", 28))
sketch6.addConstraint(Sketcher.Constraint("Horizontal", 29))
sketch6.addConstraint(Sketcher.Constraint("Equal", 0, 4))
sketch6.addConstraint(Sketcher.Constraint("Equal", 4, 6))
sketch6.addConstraint(Sketcher.Constraint("Equal", 6, 10))
sketch6.addConstraint(Sketcher.Constraint("Equal", 10, 13))
sketch6.addConstraint(Sketcher.Constraint("Equal", 13, 17))
sketch6.addConstraint(Sketcher.Constraint("Equal", 17, 21))
sketch6.addConstraint(Sketcher.Constraint("Equal", 21, 22))
sketch6.addConstraint(Sketcher.Constraint("Equal", 22, 26))
sketch6.addConstraint(Sketcher.Constraint("Equal", 26, 27))
sketch6.addConstraint(Sketcher.Constraint("Symmetric", 4, 3, 6, 3, -2))
sketch6.addConstraint(Sketcher.Constraint("Symmetric", 0, 3, 10, 3, -2))
sketch6.addConstraint(Sketcher.Constraint("Symmetric", 17, 3, 21, 3, -2))
sketch6.addConstraint(Sketcher.Constraint("Symmetric", 13, 3, 26, 3, -2))
sketch6.addConstraint(Sketcher.Constraint("Symmetric", 11, 2, 28, 2, -2))
sketch6.addConstraint(Sketcher.Constraint("Horizontal", 0, 3, 4, 3))
sketch6.addConstraint(Sketcher.Constraint("Horizontal", 3, 2, 4, 1))
sketch6.addConstraint(Sketcher.Constraint("Horizontal", 2, 2, 7, 2))
sketch6.addConstraint(Sketcher.Constraint("Horizontal", 9, 2, 10, 1))
sketch6.addConstraint(Sketcher.Constraint("Horizontal", 22, 3, 21, 1))
sketch6.addConstraint(Sketcher.Constraint("Horizontal", 27, 3, 26, 1))
sketch6.addConstraint(Sketcher.Constraint("Vertical", 13, 3, 17, 3))
sketch6.addConstraint(Sketcher.Constraint("Vertical", 17, 3, 11, 2))
sketch6.addConstraint(Sketcher.Constraint("Vertical", 16, 2, 17, 1))
sketch6.addConstraint(Sketcher.Constraint("Vertical", 27, 3, 19, 2))
sketch6.addConstraint(Sketcher.Constraint("Equal", 16, 23))
sketch6.addConstraint(Sketcher.Constraint("Equal", 25, 1))
sketch6.addConstraint(Sketcher.Constraint("Equal", 8, 15))
sketch6.addConstraint(Sketcher.Constraint("Equal", 12, 18))
sketch6.addConstraint(Sketcher.Constraint("DistanceX", 14, 1, 14, 2, Q("12.9 mm")))
sketch6.addConstraint(Sketcher.Constraint("Radius", 0, Q("3.302 mm")))
sketch6.addConstraint(Sketcher.Constraint("DistanceX", 19, 2, 19, 1, Q("178.56 mm")))
sketch6.addConstraint(Sketcher.Constraint("DistanceY", 11, 2, 13, 1, Q("25.4 mm")))
sketch6.addConstraint(Sketcher.Constraint("DistanceX", 2, 1, 2, 2, Q("40.872 mm")))
sketch6.addConstraint(Sketcher.Constraint("DistanceX", 5, 1, 5, 2, Q("27.664 mm")))
sketch6.addConstraint(Sketcher.Constraint("DistanceY", -1, 1, 0, 3, Q("101.174074 mm")))
pad6 = doc.addObject("PartDesign::Pad", "Pad005")
body2.addObject(pad6)
pad6.Profile = sketch6
pad6.Length = 12.9

sketch7 = doc.addObject("Sketcher::SketchObject", "Sketch006")
body2.addObject(sketch7)
sketch7.AttachmentSupport = (doc.getObject("YZ_Plane001"), [""])
sketch7.MapMode = "FlatFace"
sketch7.AttachmentOffset = App.Placement(Vector(0, 0, -102.18), App.Rotation())
add_polygon(sketch7, [(147, 5), (147, 0), (142, 0), (142, 5)])
sketch7.addConstraint(Sketcher.Constraint("Vertical", 0))
sketch7.addConstraint(Sketcher.Constraint("Horizontal", 1))
sketch7.addConstraint(Sketcher.Constraint("Vertical", 2))
sketch7.addConstraint(Sketcher.Constraint("Horizontal", 3))
sketch7.addConstraint(Sketcher.Constraint("PointOnObject", 0, 2, -1))
sketch7.addConstraint(Sketcher.Constraint("Equal", 3, 0))
sketch7.addConstraint(Sketcher.Constraint("DistanceX", 1, 2, 1, 1, Q("5 mm")))
sketch7.addConstraint(Sketcher.Constraint("DistanceX", -1, 1, 0, 2, Q("147.010074 mm")))
pad7 = doc.addObject("PartDesign::Pad", "Pad006")
body2.addObject(pad7)
pad7.Profile = sketch7
pad7.Length = 15
pad7.Reversed = True

sketch8 = doc.addObject("Sketcher::SketchObject", "Sketch007")
body2.addObject(sketch8)
sketch8.AttachmentSupport = (doc.getObject("YZ_Plane001"), [""])
sketch8.MapMode = "FlatFace"
sketch8.AttachmentOffset = App.Placement(Vector(0, 0, 102.18), App.Rotation())
add_polygon(sketch8, [(142, 5), (142, 0), (147, 0), (147, 5)])
sketch8.addConstraint(Sketcher.Constraint("Vertical", 0))
sketch8.addConstraint(Sketcher.Constraint("Horizontal", 1))
sketch8.addConstraint(Sketcher.Constraint("Vertical", 2))
sketch8.addConstraint(Sketcher.Constraint("Horizontal", 3))
sketch8.addConstraint(Sketcher.Constraint("PointOnObject", 0, 2, -1))
sketch8.addConstraint(Sketcher.Constraint("Equal", 3, 0))
sketch8.addConstraint(Sketcher.Constraint("DistanceX", 1, 1, 1, 2, Q("5 mm")))
sketch8.addConstraint(Sketcher.Constraint("DistanceX", -1, 1, 0, 2, Q("142.010074 mm")))
pad8 = doc.addObject("PartDesign::Pad", "Pad007")
body2.addObject(pad8)
pad8.Profile = sketch8
pad8.Length = 15
body3 = doc.addObject("PartDesign::Body", "Body002")

sketch9 = doc.addObject("Sketcher::SketchObject", "Sketch008")
body3.addObject(sketch9)
sketch9.AttachmentSupport = (doc.getObject("XY_Plane002"), [""])
sketch9.MapMode = "FlatFace"
sketch9.addGeometry(Part.ArcOfCircle(Part.Circle(Vector(140.3, 23.7, 0), Vector(0, 0, 1), 3.3), math.radians(-90), math.radians(0)), False)
sketch9.addGeometry(Part.LineSegment(Vector(140.3, 20.4, 0), Vector(127.4, 20.4, 0)), False)
sketch9.addGeometry(Part.LineSegment(Vector(127.4, 20.4, 0), Vector(127.4, -20.4, 0)), False)
sketch9.addGeometry(Part.LineSegment(Vector(127.4, -20.4, 0), Vector(140.3, -20.4, 0)), False)
sketch9.addGeometry(Part.ArcOfCircle(Part.Circle(Vector(140.3, -23.7, 0), Vector(0, 0, 1), 3.3), math.radians(0), math.radians(90)), False)
sketch9.addGeometry(Part.ArcOfCircle(Part.Circle(Vector(140.3, -23.7, 0), Vector(0, 0, 1), 3.3), math.radians(-90), math.radians(0)), False)
sketch9.addGeometry(Part.LineSegment(Vector(140.3, -27, 0), Vector(140.3, -63.1, 0)), False)
sketch9.addGeometry(Part.LineSegment(Vector(140.3, -63.1, 0), Vector(165.7, -63.1, 0)), False)
sketch9.addGeometry(Part.LineSegment(Vector(165.7, -63.1, 0), Vector(165.7, -50.2, 0)), False)
sketch9.addGeometry(Part.ArcOfCircle(Part.Circle(Vector(169, -50.2, 0), Vector(0, 0, 1), 3.3), math.radians(0), math.radians(180)), False)
sketch9.addGeometry(Part.LineSegment(Vector(172.3, -50.2, 0), Vector(199.9, -50.2, 0)), False)
sketch9.addGeometry(Part.ArcOfCircle(Part.Circle(Vector(203.2, -50.2, 0), Vector(0, 0, 1), 3.3), math.radians(0), math.radians(180)), False)
sketch9.addGeometry(Part.LineSegment(Vector(206.6, -50.2, 0), Vector(206.6, -63.1, 0)), False)
sketch9.addGeometry(Part.LineSegment(Vector(206.6, -63.1, 0), Vector(232, -63.1, 0)), False)
sketch9.addGeometry(Part.LineSegment(Vector(232, -63.1, 0), Vector(232, 63.1, 0)), False)
sketch9.addGeometry(Part.LineSegment(Vector(232, 63.1, 0), Vector(206.6, 63.1, 0)), False)
sketch9.addGeometry(Part.LineSegment(Vector(206.6, 63.1, 0), Vector(206.6, 50.2, 0)), False)
sketch9.addGeometry(Part.ArcOfCircle(Part.Circle(Vector(203.2, 50.2, 0), Vector(0, 0, 1), 3.3), math.radians(180), math.radians(360)), False)
sketch9.addGeometry(Part.LineSegment(Vector(199.9, 50.2, 0), Vector(172.3, 50.2, 0)), False)
sketch9.addGeometry(Part.ArcOfCircle(Part.Circle(Vector(169, 50.2, 0), Vector(0, 0, 1), 3.3), math.radians(180), math.radians(360)), False)
sketch9.addGeometry(Part.LineSegment(Vector(165.7, 50.2, 0), Vector(165.7, 63.1, 0)), False)
sketch9.addGeometry(Part.LineSegment(Vector(165.7, 63.1, 0), Vector(140.3, 63.1, 0)), False)
sketch9.addGeometry(Part.LineSegment(Vector(140.3, 63.1, 0), Vector(140.3, 27, 0)), False)
sketch9.addGeometry(Part.ArcOfCircle(Part.Circle(Vector(140.3, 23.7, 0), Vector(0, 0, 1), 3.3), math.radians(0), math.radians(90)), False)
sketch9.addConstraint(Sketcher.Constraint("Tangent", 0, 1, 1, 1))
sketch9.addConstraint(Sketcher.Constraint("Coincident", 1, 2, 2, 1))
sketch9.addConstraint(Sketcher.Constraint("Coincident", 2, 2, 3, 1))
sketch9.addConstraint(Sketcher.Constraint("Tangent", 3, 2, 4, 2))
sketch9.addConstraint(Sketcher.Constraint("Tangent", 4, 1, 5, 2))
sketch9.addConstraint(Sketcher.Constraint("Coincident", 5, 1, 6, 1))
sketch9.addConstraint(Sketcher.Constraint("Coincident", 6, 2, 7, 1))
sketch9.addConstraint(Sketcher.Constraint("Coincident", 7, 2, 8, 1))
sketch9.addConstraint(Sketcher.Constraint("Tangent", 8, 2, 9, 2))
sketch9.addConstraint(Sketcher.Constraint("Coincident", 9, 1, 10, 1))
sketch9.addConstraint(Sketcher.Constraint("Coincident", 10, 2, 11, 2))
sketch9.addConstraint(Sketcher.Constraint("Tangent", 11, 1, 12, 1))
sketch9.addConstraint(Sketcher.Constraint("Coincident", 12, 2, 13, 1))
sketch9.addConstraint(Sketcher.Constraint("Coincident", 13, 2, 14, 1))
sketch9.addConstraint(Sketcher.Constraint("Coincident", 14, 2, 15, 1))
sketch9.addConstraint(Sketcher.Constraint("Coincident", 15, 2, 16, 1))
sketch9.addConstraint(Sketcher.Constraint("Tangent", 16, 2, 17, 2))
sketch9.addConstraint(Sketcher.Constraint("Coincident", 17, 1, 18, 1))
sketch9.addConstraint(Sketcher.Constraint("Coincident", 18, 2, 19, 2))
sketch9.addConstraint(Sketcher.Constraint("Tangent", 19, 1, 20, 1))
sketch9.addConstraint(Sketcher.Constraint("Coincident", 20, 2, 21, 1))
sketch9.addConstraint(Sketcher.Constraint("Coincident", 21, 2, 22, 1))
sketch9.addConstraint(Sketcher.Constraint("Coincident", 22, 2, 23, 2))
sketch9.addConstraint(Sketcher.Constraint("Tangent", 23, 1, 0, 2))
sketch9.addConstraint(Sketcher.Constraint("Horizontal", 1))
sketch9.addConstraint(Sketcher.Constraint("Vertical", 2))
sketch9.addConstraint(Sketcher.Constraint("Horizontal", 3))
sketch9.addConstraint(Sketcher.Constraint("Vertical", 6))
sketch9.addConstraint(Sketcher.Constraint("Horizontal", 7))
sketch9.addConstraint(Sketcher.Constraint("Vertical", 8))
sketch9.addConstraint(Sketcher.Constraint("Horizontal", 10))
sketch9.addConstraint(Sketcher.Constraint("Vertical", 12))
sketch9.addConstraint(Sketcher.Constraint("Horizontal", 13))
sketch9.addConstraint(Sketcher.Constraint("Vertical", 14))
sketch9.addConstraint(Sketcher.Constraint("Horizontal", 15))
sketch9.addConstraint(Sketcher.Constraint("Vertical", 16))
sketch9.addConstraint(Sketcher.Constraint("Horizontal", 18))
sketch9.addConstraint(Sketcher.Constraint("Vertical", 20))
sketch9.addConstraint(Sketcher.Constraint("Horizontal", 21))
sketch9.addConstraint(Sketcher.Constraint("Vertical", 22))
sketch9.addConstraint(Sketcher.Constraint("Equal", 0, 4))
sketch9.addConstraint(Sketcher.Constraint("Equal", 4, 5))
sketch9.addConstraint(Sketcher.Constraint("Equal", 5, 9))
sketch9.addConstraint(Sketcher.Constraint("Equal", 9, 11))
sketch9.addConstraint(Sketcher.Constraint("Equal", 11, 17))
sketch9.addConstraint(Sketcher.Constraint("Equal", 17, 19))
sketch9.addConstraint(Sketcher.Constraint("Equal", 19, 23))
sketch9.addConstraint(Sketcher.Constraint("Symmetric", 0, 3, 4, 3, -1))
sketch9.addConstraint(Sketcher.Constraint("Symmetric", 11, 3, 17, 3, -1))
sketch9.addConstraint(Sketcher.Constraint("Symmetric", 9, 3, 19, 3, -1))
sketch9.addConstraint(Sketcher.Constraint("Symmetric", 6, 2, 21, 2, -1))
sketch9.addConstraint(Sketcher.Constraint("Horizontal", 9, 3, 11, 3))
sketch9.addConstraint(Sketcher.Constraint("Horizontal", 5, 3, 4, 1))
sketch9.addConstraint(Sketcher.Constraint("Horizontal", 8, 2, 9, 1))
sketch9.addConstraint(Sketcher.Constraint("Horizontal", 7, 2, 12, 2))
sketch9.addConstraint(Sketcher.Constraint("Horizontal", 16, 2, 17, 1))
sketch9.addConstraint(Sketcher.Constraint("Horizontal", 15, 2, 20, 2))
sketch9.addConstraint(Sketcher.Constraint("Horizontal", 0, 3, 23, 1))
sketch9.addConstraint(Sketcher.Constraint("Vertical", 3, 2, 5, 1))
sketch9.addConstraint(Sketcher.Constraint("Equal", 7, 13))
sketch9.addConstraint(Sketcher.Constraint("Equal", 3, 8))
sketch9.addConstraint(Sketcher.Constraint("DistanceX", 1, 2, 1, 1, Q("12.9 mm")))
sketch9.addConstraint(Sketcher.Constraint("DistanceX", 7, 1, 7, 2, Q("25.4 mm")))
sketch9.addConstraint(Sketcher.Constraint("Radius", 0, Q("3.302 mm")))
sketch9.addConstraint(Sketcher.Constraint("DistanceX", 10, 1, 10, 2, Q("27.664 mm")))
sketch9.addConstraint(Sketcher.Constraint("DistanceY", 2, 2, 2, 1, Q("40.872 mm")))
sketch9.addConstraint(Sketcher.Constraint("DistanceX", -1, 1, 0, 3, Q("140.28 mm")))
sketch9.addConstraint(Sketcher.Constraint("DistanceY", 14, 1, 14, 2, Q("126.148148 mm")))
pad9 = doc.addObject("PartDesign::Pad", "Pad008")
body3.addObject(pad9)
pad9.Profile = sketch9
pad9.Length = 12.9

sketch10 = doc.addObject("Sketcher::SketchObject", "Sketch009")
body3.addObject(sketch10)
sketch10.AttachmentSupport = (doc.getObject("YZ_Plane002"), [""])
sketch10.MapMode = "FlatFace"
sketch10.AttachmentOffset = App.Placement(Vector(0, 0, 127.38), App.Rotation())
add_polygon(sketch10, [(5, 5), (5, 0), (0, 0), (0, 5)])
sketch10.addConstraint(Sketcher.Constraint("Vertical", 0))
sketch10.addConstraint(Sketcher.Constraint("Horizontal", 1))
sketch10.addConstraint(Sketcher.Constraint("Vertical", 2))
sketch10.addConstraint(Sketcher.Constraint("Horizontal", 3))
sketch10.addConstraint(Sketcher.Constraint("Coincident", 1, 2, -1, 1))
sketch10.addConstraint(Sketcher.Constraint("Equal", 3, 0))
sketch10.addConstraint(Sketcher.Constraint("DistanceX", 1, 2, 1, 1, Q("5 mm")))
pad10 = doc.addObject("PartDesign::Pad", "Pad009")
body3.addObject(pad10)
pad10.Profile = sketch10
pad10.Length = 15
pad10.Reversed = True

sketch11 = doc.addObject("Sketcher::SketchObject", "Sketch010")
body3.addObject(sketch11)
sketch11.AttachmentSupport = (doc.getObject("YZ_Plane002"), [""])
sketch11.MapMode = "FlatFace"
sketch11.AttachmentOffset = App.Placement(Vector(0, 0, 231.952), App.Rotation())
add_polygon(sketch11, [(0, 5), (0, 0), (5, 0), (5, 5)])
sketch11.addConstraint(Sketcher.Constraint("Vertical", 0))
sketch11.addConstraint(Sketcher.Constraint("Horizontal", 1))
sketch11.addConstraint(Sketcher.Constraint("Vertical", 2))
sketch11.addConstraint(Sketcher.Constraint("Horizontal", 3))
sketch11.addConstraint(Sketcher.Constraint("Coincident", 0, 2, -1, 1))
sketch11.addConstraint(Sketcher.Constraint("Equal", 3, 0))
sketch11.addConstraint(Sketcher.Constraint("DistanceX", 1, 1, 1, 2, Q("5 mm")))
pad11 = doc.addObject("PartDesign::Pad", "Pad010")
body3.addObject(pad11)
pad11.Profile = sketch11
pad11.Length = 15

doc.recompute()
